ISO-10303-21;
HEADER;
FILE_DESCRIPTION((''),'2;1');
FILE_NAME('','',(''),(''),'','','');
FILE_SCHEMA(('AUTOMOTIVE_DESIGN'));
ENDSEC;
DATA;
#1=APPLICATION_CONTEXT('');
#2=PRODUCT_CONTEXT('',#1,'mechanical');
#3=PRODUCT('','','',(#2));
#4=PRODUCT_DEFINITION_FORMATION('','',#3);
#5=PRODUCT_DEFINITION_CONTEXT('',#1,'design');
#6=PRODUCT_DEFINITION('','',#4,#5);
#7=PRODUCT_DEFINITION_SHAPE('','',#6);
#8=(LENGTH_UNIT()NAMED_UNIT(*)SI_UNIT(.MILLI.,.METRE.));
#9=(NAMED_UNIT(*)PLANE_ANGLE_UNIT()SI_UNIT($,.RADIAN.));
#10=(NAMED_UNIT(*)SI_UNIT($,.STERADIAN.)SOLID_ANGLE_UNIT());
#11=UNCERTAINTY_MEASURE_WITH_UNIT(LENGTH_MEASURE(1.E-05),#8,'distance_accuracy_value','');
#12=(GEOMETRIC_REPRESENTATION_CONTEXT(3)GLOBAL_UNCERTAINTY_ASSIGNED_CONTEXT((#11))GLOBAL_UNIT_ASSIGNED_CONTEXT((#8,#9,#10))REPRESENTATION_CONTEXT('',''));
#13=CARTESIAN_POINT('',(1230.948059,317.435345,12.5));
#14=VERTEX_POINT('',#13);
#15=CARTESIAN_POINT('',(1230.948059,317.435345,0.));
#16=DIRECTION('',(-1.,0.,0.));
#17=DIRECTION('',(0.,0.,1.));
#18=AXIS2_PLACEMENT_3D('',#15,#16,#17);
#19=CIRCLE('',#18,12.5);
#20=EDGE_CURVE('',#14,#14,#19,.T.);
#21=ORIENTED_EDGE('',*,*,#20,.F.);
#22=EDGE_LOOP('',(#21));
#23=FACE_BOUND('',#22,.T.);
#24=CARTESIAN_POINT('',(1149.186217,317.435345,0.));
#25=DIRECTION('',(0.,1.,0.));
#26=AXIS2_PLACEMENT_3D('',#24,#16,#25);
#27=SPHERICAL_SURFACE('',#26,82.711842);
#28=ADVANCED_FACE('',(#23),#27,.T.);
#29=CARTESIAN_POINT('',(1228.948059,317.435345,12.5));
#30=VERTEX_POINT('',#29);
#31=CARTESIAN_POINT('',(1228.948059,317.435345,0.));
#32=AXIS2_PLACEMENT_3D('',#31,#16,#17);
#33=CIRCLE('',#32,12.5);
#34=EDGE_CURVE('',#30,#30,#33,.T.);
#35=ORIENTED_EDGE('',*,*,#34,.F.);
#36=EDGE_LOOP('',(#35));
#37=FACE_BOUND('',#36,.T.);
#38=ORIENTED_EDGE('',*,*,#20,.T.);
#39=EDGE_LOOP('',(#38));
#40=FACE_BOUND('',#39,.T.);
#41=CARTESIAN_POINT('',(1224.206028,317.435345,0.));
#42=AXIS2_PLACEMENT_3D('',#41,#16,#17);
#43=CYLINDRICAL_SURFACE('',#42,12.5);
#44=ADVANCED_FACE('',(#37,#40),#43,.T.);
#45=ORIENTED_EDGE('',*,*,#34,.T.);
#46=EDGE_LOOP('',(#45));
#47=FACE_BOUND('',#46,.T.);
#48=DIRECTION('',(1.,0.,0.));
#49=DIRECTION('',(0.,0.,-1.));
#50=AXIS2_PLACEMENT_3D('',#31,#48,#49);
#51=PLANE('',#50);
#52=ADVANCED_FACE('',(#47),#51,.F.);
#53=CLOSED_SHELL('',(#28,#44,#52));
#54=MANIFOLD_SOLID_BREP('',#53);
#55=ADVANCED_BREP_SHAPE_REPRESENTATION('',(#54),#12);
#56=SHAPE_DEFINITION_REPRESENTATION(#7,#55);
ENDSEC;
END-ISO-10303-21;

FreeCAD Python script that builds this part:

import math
import FreeCAD as App
import Part
import Sketcher

V = App.Vector

doc = App.newDocument("Part")
body = doc.addObject("PartDesign::Body", "Body")

sketch1 = body.newObject("Sketcher::SketchObject", "Sketch")
sketch1.AttachmentSupport = (doc.getObject("XY_Plane"), [""])
sketch1.MapMode = "FlatFace"
sketch1.addGeometry(Part.LineSegment(V(1228.9, 329.9, 0), V(1228.9, 317.4, 0)), False)
sketch1.addGeometry(Part.LineSegment(V(1228.9, 317.4, 0), V(1231.9, 317.4, 0)), False)
sketch1.addGeometry(Part.ArcOfCircle(Part.Circle(V(1149.2, 317.4, 0), V(0, 0, 1), 82.7), math.radians(0), math.radians(8.69)), False)
sketch1.addGeometry(Part.LineSegment(V(1230.9, 329.9, 0), V(1228.9, 329.9, 0)), False)
sketch1.addGeometry(Part.LineSegment(V(1149.2, 317.4, 0), V(1231.9, 317.4, 0)), True)
sketch1.addConstraint(Sketcher.Constraint("Coincident", 0, 2, 1, 1))
sketch1.addConstraint(Sketcher.Constraint("Coincident", 1, 2, 2, 1))
sketch1.addConstraint(Sketcher.Constraint("Coincident", 2, 2, 3, 1))
sketch1.addConstraint(Sketcher.Constraint("Coincident", 3, 2, 0, 1))
sketch1.addConstraint(Sketcher.Constraint("Vertical", 0))
sketch1.addConstraint(Sketcher.Constraint("Horizontal", 1))
sketch1.addConstraint(Sketcher.Constraint("Horizontal", 3))
sketch1.addConstraint(Sketcher.Constraint("Horizontal", 4))
sketch1.addConstraint(Sketcher.Constraint("Coincident", 4, 1, 2, 3))
sketch1.addConstraint(Sketcher.Constraint("Coincident", 4, 2, 1, 2))
sketch1.addConstraint(Sketcher.Constraint("DistanceX", 3, 2, 3, 1, 2.0))
sketch1.addConstraint(Sketcher.Constraint("DistanceY", 0, 2, 0, 1, 12.5))
sketch1.addConstraint(Sketcher.Constraint("DistanceX", 1, 1, 1, 2, 2.95))
sketch1.addConstraint(Sketcher.Constraint("DistanceX", -1, 1, 0, 2, 1228.948059))
sketch1.addConstraint(Sketcher.Constraint("DistanceY", -1, 1, 2, 3, 317.435345))
revolution = body.newObject("PartDesign::Revolution", "Revolution")
revolution.Profile = sketch1
revolution.ReferenceAxis = (sketch1, ["Axis0"])
revolution.Angle = 360

doc.recompute()
